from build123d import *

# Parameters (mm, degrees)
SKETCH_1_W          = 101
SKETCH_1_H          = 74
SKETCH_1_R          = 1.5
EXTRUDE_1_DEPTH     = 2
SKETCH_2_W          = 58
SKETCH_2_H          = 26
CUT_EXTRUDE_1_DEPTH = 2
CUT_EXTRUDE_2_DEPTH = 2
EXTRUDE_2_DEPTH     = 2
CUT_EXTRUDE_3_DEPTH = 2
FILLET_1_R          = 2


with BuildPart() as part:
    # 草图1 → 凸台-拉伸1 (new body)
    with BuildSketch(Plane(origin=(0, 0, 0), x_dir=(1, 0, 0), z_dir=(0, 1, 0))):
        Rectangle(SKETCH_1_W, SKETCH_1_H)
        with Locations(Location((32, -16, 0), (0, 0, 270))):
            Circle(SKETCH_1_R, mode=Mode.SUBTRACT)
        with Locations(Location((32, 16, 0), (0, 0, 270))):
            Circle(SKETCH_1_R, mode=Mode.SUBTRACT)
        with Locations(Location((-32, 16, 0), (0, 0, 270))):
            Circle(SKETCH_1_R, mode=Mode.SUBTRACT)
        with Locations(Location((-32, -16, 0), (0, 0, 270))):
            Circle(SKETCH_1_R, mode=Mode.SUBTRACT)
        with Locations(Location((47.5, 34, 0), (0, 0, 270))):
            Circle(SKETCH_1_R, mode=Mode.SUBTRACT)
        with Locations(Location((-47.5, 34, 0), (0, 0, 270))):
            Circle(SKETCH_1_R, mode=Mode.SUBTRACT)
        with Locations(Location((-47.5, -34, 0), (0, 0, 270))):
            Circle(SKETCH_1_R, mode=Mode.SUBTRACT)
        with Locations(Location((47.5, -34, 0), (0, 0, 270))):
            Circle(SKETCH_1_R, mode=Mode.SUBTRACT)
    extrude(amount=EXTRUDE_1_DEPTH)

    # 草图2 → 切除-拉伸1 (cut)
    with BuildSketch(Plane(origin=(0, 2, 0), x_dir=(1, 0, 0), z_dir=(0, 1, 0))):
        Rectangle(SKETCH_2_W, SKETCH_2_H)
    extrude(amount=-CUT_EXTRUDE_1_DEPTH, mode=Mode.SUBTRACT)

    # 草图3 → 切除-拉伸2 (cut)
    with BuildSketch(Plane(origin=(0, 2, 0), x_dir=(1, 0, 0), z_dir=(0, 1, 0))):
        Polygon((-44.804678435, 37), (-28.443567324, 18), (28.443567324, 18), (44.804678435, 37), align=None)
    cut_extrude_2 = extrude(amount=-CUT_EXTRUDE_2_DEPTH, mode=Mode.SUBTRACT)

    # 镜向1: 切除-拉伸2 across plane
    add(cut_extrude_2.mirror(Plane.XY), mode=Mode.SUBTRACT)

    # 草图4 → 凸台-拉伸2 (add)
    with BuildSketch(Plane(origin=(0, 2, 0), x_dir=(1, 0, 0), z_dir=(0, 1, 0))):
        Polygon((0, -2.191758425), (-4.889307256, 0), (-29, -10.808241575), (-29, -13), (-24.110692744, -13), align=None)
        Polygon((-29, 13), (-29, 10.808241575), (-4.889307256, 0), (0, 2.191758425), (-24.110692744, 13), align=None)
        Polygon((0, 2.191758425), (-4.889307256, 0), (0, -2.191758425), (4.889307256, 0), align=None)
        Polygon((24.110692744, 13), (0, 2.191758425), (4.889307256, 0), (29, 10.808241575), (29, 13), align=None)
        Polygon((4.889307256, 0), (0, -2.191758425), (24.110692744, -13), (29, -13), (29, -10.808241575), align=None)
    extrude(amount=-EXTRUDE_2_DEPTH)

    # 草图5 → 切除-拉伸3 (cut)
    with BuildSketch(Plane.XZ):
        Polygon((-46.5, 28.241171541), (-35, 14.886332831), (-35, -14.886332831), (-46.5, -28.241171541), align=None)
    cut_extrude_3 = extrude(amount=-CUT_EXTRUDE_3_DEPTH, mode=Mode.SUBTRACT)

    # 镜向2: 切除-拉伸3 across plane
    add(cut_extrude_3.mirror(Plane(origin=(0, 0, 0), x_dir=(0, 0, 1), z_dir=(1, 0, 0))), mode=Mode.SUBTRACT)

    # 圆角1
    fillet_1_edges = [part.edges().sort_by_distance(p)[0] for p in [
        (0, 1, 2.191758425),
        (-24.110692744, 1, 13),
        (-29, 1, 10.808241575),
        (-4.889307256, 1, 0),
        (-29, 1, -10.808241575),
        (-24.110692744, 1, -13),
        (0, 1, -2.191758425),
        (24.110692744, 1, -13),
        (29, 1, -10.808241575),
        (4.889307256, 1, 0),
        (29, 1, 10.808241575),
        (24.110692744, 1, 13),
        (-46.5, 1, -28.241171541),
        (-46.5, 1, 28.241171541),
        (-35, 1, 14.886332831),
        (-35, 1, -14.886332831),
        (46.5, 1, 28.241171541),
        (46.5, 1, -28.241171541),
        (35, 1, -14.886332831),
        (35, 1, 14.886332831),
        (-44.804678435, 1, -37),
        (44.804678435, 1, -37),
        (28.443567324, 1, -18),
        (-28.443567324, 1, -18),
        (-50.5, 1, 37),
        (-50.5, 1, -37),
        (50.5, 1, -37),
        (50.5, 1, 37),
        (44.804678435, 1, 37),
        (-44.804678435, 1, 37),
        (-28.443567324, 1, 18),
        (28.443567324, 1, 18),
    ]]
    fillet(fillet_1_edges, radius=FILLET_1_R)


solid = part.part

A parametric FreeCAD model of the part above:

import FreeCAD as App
import Part
import Sketcher

V = App.Vector
Q = App.Units.Quantity


def edges_at(feature, points):
    """Names of the edges that pass closest to the given points."""
    edges = feature.Shape.Edges
    near = lambda p: min(range(len(edges)), key=lambda i: edges[i].distToShape(Part.Vertex(*p))[0])
    return sorted({f"Edge{near(p) + 1}" for p in points})


def add_polygon(sketch, points):
    """Adds a closed chain of lines whose ends are joined by coincident constraints."""
    first, n = sketch.GeometryCount, len(points)
    for a, b in zip(points, points[1:] + points[:1]):
        sketch.addGeometry(Part.LineSegment(App.Vector(*a, 0), App.Vector(*b, 0)), False)
    for i in range(n):
        sketch.addConstraint(Sketcher.Constraint("Coincident", first + i, 2, first + (i + 1) % n, 1))

doc = App.newDocument("Part")
body = doc.addObject("PartDesign::Body", "Body")

# Sketch on XZ plane
sketch1 = body.newObject("Sketcher::SketchObject", "Sketch")
sketch1.AttachmentSupport = (doc.getObject("XZ_Plane"), [""])
sketch1.MapMode = "FlatFace"
add_polygon(sketch1, [(-50.5, -37), (-50.5, 37), (50.5, 37), (50.5, -37)])  # lines 0-3
sketch1.addGeometry(Part.Circle(V(-47.5, 34, 0), V(0, 0, 1), 1.5), False)  # 4
sketch1.addGeometry(Part.Circle(V(-32, 16, 0), V(0, 0, 1), 1.5), False)  # 5
sketch1.addGeometry(Part.Circle(V(47.5, 34, 0), V(0, 0, 1), 1.5), False)  # 6
sketch1.addGeometry(Part.Circle(V(32, 16, 0), V(0, 0, 1), 1.5), False)  # 7
sketch1.addGeometry(Part.Circle(V(-32, -16, 0), V(0, 0, 1), 1.5), False)  # 8
sketch1.addGeometry(Part.Circle(V(-47.5, -34, 0), V(0, 0, 1), 1.5), False)  # 9
sketch1.addGeometry(Part.Circle(V(32, -16, 0), V(0, 0, 1), 1.5), False)  # 10
sketch1.addGeometry(Part.Circle(V(47.5, -34, 0), V(0, 0, 1), 1.5), False)  # 11
sketch1.addConstraint([
    Sketcher.Constraint("Vertical", 0),
    Sketcher.Constraint("Horizontal", 1),
    Sketcher.Constraint("Vertical", 2),
    Sketcher.Constraint("Horizontal", 3),
    Sketcher.Constraint("Equal", 4, 5),
    Sketcher.Constraint("Equal", 5, 6),
    Sketcher.Constraint("Equal", 6, 7),
    Sketcher.Constraint("Equal", 7, 8),
    Sketcher.Constraint("Equal", 8, 9),
    Sketcher.Constraint("Equal", 9, 10),
    Sketcher.Constraint("Equal", 10, 11),
    Sketcher.Constraint("Symmetric", 7, 3, 8, 3, -1, 1),
    Sketcher.Constraint("Symmetric", 6, 3, 9, 3, -1, 1),
    Sketcher.Constraint("Symmetric", 5, 3, 10, 3, -1, 1),
    Sketcher.Constraint("Symmetric", 4, 3, 11, 3, -1, 1),
    Sketcher.Constraint("Symmetric", 0, 2, 2, 2, -1, 1),
    Sketcher.Constraint("Symmetric", 4, 3, 6, 3, -2),
    Sketcher.Constraint("Symmetric", 5, 3, 7, 3, -2),
    Sketcher.Constraint("Diameter", 4, Q("3 mm")),
    Sketcher.Constraint("DistanceX", 1, 1, 1, 2, Q("101 mm")),
    Sketcher.Constraint("DistanceY", 0, 1, 0, 2, Q("74 mm")),
    Sketcher.Constraint("DistanceY", -1, 1, 4, 3, Q("34 mm")),
    Sketcher.Constraint("DistanceX", 5, 3, -1, 1, Q("32 mm")),
    Sketcher.Constraint("DistanceY", -1, 1, 5, 3, Q("16 mm")),
    Sketcher.Constraint("DistanceX", 4, 3, 6, 3, Q("95 mm")),
])
pad1 = body.newObject("PartDesign::Pad", "Pad")
pad1.Profile = sketch1
pad1.Length = 2
pad1.Reversed = True

# Sketch on XZ plane
sketch2 = body.newObject("Sketcher::SketchObject", "Sketch001")
sketch2.AttachmentSupport = (doc.getObject("XZ_Plane"), [""])
sketch2.MapMode = "FlatFace"
sketch2.AttachmentOffset = App.Placement(V(0, 0, -2), App.Rotation())
add_polygon(sketch2, [(-29, -13), (-29, 13), (29, 13), (29, -13)])  # lines 0-3
sketch2.addConstraint([
    Sketcher.Constraint("Vertical", 0),
    Sketcher.Constraint("Horizontal", 1),
    Sketcher.Constraint("Vertical", 2),
    Sketcher.Constraint("Horizontal", 3),
    Sketcher.Constraint("Symmetric", 0, 2, 2, 2, -1, 1),
    Sketcher.Constraint("DistanceX", 1, 1, 1, 2, Q("58 mm")),
    Sketcher.Constraint("DistanceY", 0, 1, 0, 2, Q("26 mm")),
])
pocket1 = body.newObject("PartDesign::Pocket", "Pocket")
pocket1.Profile = sketch2
pocket1.Length = 2
pocket1.Reversed = True

# Sketch on XZ plane
sketch3 = body.newObject("Sketcher::SketchObject", "Sketch002")
sketch3.AttachmentSupport = (doc.getObject("XZ_Plane"), [""])
sketch3.MapMode = "FlatFace"
sketch3.AttachmentOffset = App.Placement(V(0, 0, -2), App.Rotation())
add_polygon(sketch3, [(-45, -37), (-28, -18), (28, -18), (45, -37)])  # lines 0-3
sketch3.addConstraint([
    Sketcher.Constraint("Horizontal", 1),
    Sketcher.Constraint("Horizontal", 3),
    Sketcher.Constraint("Equal", 0, 2),
    Sketcher.Constraint("DistanceY", 0, 2, -1, 1, Q("18 mm")),
    Sketcher.Constraint("DistanceY", 2, 2, -1, 1, Q("37 mm")),
    Sketcher.Constraint("Distance", 0, Q("25.073611 mm")),
    Sketcher.Constraint("DistanceX", 1, 1, 1, 2, Q("56.887135 mm")),
    Sketcher.Constraint("DistanceX", -1, 1, 2, 2, Q("44.804678 mm")),
])
pocket2 = body.newObject("PartDesign::Pocket", "Pocket001")
pocket2.Profile = sketch3
pocket2.Length = 2
pocket2.Reversed = True
doc.recompute()

mirrored = body.newObject("PartDesign::Mirrored", "Mirrored")
mirrored.Originals = [pocket2]
mirrored.MirrorPlane = (doc.getObject("XY_Plane"), [""])
body.Tip = mirrored

# Sketch on XZ plane
sketch4 = body.newObject("Sketcher::SketchObject", "Sketch003")
sketch4.AttachmentSupport = (doc.getObject("XZ_Plane"), [""])
sketch4.MapMode = "FlatFace"
sketch4.AttachmentOffset = App.Placement(V(0, 0, -2), App.Rotation())
add_polygon(sketch4, [(-4.9, 0), (-29, 10.8), (-29, 13), (-24.1, 13), (0, 2.2), (24.1, 13), (29, 13), (29, 10.8), (4.9, 0), (29, -10.8), (29, -13), (24.1, -13), (0, -2.2), (-24.1, -13), (-29, -13), (-29, -10.8)])  # lines 0-15
sketch4.addConstraint([
    Sketcher.Constraint("Vertical", 1),
    Sketcher.Constraint("Horizontal", 2),
    Sketcher.Constraint("Horizontal", 5),
    Sketcher.Constraint("Vertical", 6),
    Sketcher.Constraint("Vertical", 9),
    Sketcher.Constraint("Horizontal", 10),
    Sketcher.Constraint("Horizontal", 13),
    Sketcher.Constraint("Vertical", 14),
    Sketcher.Constraint("Symmetric", 0, 2, 8, 2, -1, 1),
    Sketcher.Constraint("Symmetric", 2, 2, 10, 2, -1, 1),
    Sketcher.Constraint("Symmetric", 3, 2, 11, 2, -1, 1),
    Sketcher.Constraint("Symmetric", 4, 2, 12, 2, -1, 1),
    Sketcher.Constraint("Symmetric", 6, 2, 14, 2, -1, 1),
    Sketcher.Constraint("Symmetric", 7, 2, 15, 2, -1, 1),
    Sketcher.Constraint("Symmetric", 2, 2, 4, 2, -2),
    Sketcher.Constraint("Symmetric", 0, 2, 6, 2, -2),
    Sketcher.Constraint("PointOnObject", 3, 2, -2),
    Sketcher.Constraint("PointOnObject", 7, 2, -1),
    Sketcher.Constraint("Parallel", 0, 3),
    Sketcher.Constraint("Equal", 0, 3),
    Sketcher.Constraint("DistanceX", 0, 2, -1, 1, Q("29 mm")),
    Sketcher.Constraint("DistanceY", -1, 1, 1, 2, Q("13 mm")),
    Sketcher.Constraint("DistanceY", 1, 1, 1, 2, Q("2.191758 mm")),
    Sketcher.Constraint("DistanceX", 2, 1, 2, 2, Q("4.889307 mm")),
])
pad2 = body.newObject("PartDesign::Pad", "Pad001")
pad2.Profile = sketch4
pad2.Length = 2

# Sketch on XZ plane
sketch5 = body.newObject("Sketcher::SketchObject", "Sketch004")
sketch5.AttachmentSupport = (doc.getObject("XZ_Plane"), [""])
sketch5.MapMode = "FlatFace"
add_polygon(sketch5, [(-35, 15), (-46, 28), (-46, -28), (-35, -15)])  # lines 0-3
sketch5.addConstraint([
    Sketcher.Constraint("Vertical", 1),
    Sketcher.Constraint("Vertical", 3),
    Sketcher.Constraint("Equal", 0, 2),
    Sketcher.Constraint("DistanceX", 2, 2, -1, 1, Q("35 mm")),
    Sketcher.Constraint("DistanceX", 0, 2, -1, 1, Q("46.5 mm")),
    Sketcher.Constraint("DistanceY", 1, 2, 1, 1, Q("56.482343 mm")),
    Sketcher.Constraint("DistanceY", 3, 1, 3, 2, Q("29.772666 mm")),
    Sketcher.Constraint("DistanceY", -1, 1, 0, 2, Q("28.241172 mm")),
])
pocket3 = body.newObject("PartDesign::Pocket", "Pocket002")
pocket3.Profile = sketch5
pocket3.Length = 2
doc.recompute()

mirrored2 = body.newObject("PartDesign::Mirrored", "Mirrored001")
mirrored2.Originals = [pocket3]
mirrored2.MirrorPlane = (doc.getObject("YZ_Plane"), [""])
body.Tip = mirrored2
doc.recompute()

fillet = body.newObject("PartDesign::Fillet", "Fillet")
fillet.Base = (mirrored2, edges_at(mirrored2, [
    (0, 1, 2.192),
    (-24.111, 1, 13),
    (-29, 1, 10.808),
    (-4.889, 1, 0),
    (-29, 1, -10.808),
    (-24.111, 1, -13),
    (0, 1, -2.192),
    (24.111, 1, -13),
    (29, 1, -10.808),
    (4.889, 1, 0),
    (29, 1, 10.808),
    (24.111, 1, 13),
    (-46.5, 1, -28.241),
    (-46.5, 1, 28.241),
    (-35, 1, 14.886),
    (-35, 1, -14.886),
    (46.5, 1, 28.241),
    (46.5, 1, -28.241),
    (35, 1, -14.886),
    (35, 1, 14.886),
    (-44.805, 1, -37),
    (44.805, 1, -37),
    (28.444, 1, -18),
    (-28.444, 1, -18),
    (-50.5, 1, 37),
    (-50.5, 1, -37),
    (50.5, 1, -37),
    (50.5, 1, 37),
    (44.805, 1, 37),
    (-44.805, 1, 37),
    (-28.444, 1, 18),
    (28.444, 1, 18),
]))
fillet.Radius = 2

doc.recompute()
